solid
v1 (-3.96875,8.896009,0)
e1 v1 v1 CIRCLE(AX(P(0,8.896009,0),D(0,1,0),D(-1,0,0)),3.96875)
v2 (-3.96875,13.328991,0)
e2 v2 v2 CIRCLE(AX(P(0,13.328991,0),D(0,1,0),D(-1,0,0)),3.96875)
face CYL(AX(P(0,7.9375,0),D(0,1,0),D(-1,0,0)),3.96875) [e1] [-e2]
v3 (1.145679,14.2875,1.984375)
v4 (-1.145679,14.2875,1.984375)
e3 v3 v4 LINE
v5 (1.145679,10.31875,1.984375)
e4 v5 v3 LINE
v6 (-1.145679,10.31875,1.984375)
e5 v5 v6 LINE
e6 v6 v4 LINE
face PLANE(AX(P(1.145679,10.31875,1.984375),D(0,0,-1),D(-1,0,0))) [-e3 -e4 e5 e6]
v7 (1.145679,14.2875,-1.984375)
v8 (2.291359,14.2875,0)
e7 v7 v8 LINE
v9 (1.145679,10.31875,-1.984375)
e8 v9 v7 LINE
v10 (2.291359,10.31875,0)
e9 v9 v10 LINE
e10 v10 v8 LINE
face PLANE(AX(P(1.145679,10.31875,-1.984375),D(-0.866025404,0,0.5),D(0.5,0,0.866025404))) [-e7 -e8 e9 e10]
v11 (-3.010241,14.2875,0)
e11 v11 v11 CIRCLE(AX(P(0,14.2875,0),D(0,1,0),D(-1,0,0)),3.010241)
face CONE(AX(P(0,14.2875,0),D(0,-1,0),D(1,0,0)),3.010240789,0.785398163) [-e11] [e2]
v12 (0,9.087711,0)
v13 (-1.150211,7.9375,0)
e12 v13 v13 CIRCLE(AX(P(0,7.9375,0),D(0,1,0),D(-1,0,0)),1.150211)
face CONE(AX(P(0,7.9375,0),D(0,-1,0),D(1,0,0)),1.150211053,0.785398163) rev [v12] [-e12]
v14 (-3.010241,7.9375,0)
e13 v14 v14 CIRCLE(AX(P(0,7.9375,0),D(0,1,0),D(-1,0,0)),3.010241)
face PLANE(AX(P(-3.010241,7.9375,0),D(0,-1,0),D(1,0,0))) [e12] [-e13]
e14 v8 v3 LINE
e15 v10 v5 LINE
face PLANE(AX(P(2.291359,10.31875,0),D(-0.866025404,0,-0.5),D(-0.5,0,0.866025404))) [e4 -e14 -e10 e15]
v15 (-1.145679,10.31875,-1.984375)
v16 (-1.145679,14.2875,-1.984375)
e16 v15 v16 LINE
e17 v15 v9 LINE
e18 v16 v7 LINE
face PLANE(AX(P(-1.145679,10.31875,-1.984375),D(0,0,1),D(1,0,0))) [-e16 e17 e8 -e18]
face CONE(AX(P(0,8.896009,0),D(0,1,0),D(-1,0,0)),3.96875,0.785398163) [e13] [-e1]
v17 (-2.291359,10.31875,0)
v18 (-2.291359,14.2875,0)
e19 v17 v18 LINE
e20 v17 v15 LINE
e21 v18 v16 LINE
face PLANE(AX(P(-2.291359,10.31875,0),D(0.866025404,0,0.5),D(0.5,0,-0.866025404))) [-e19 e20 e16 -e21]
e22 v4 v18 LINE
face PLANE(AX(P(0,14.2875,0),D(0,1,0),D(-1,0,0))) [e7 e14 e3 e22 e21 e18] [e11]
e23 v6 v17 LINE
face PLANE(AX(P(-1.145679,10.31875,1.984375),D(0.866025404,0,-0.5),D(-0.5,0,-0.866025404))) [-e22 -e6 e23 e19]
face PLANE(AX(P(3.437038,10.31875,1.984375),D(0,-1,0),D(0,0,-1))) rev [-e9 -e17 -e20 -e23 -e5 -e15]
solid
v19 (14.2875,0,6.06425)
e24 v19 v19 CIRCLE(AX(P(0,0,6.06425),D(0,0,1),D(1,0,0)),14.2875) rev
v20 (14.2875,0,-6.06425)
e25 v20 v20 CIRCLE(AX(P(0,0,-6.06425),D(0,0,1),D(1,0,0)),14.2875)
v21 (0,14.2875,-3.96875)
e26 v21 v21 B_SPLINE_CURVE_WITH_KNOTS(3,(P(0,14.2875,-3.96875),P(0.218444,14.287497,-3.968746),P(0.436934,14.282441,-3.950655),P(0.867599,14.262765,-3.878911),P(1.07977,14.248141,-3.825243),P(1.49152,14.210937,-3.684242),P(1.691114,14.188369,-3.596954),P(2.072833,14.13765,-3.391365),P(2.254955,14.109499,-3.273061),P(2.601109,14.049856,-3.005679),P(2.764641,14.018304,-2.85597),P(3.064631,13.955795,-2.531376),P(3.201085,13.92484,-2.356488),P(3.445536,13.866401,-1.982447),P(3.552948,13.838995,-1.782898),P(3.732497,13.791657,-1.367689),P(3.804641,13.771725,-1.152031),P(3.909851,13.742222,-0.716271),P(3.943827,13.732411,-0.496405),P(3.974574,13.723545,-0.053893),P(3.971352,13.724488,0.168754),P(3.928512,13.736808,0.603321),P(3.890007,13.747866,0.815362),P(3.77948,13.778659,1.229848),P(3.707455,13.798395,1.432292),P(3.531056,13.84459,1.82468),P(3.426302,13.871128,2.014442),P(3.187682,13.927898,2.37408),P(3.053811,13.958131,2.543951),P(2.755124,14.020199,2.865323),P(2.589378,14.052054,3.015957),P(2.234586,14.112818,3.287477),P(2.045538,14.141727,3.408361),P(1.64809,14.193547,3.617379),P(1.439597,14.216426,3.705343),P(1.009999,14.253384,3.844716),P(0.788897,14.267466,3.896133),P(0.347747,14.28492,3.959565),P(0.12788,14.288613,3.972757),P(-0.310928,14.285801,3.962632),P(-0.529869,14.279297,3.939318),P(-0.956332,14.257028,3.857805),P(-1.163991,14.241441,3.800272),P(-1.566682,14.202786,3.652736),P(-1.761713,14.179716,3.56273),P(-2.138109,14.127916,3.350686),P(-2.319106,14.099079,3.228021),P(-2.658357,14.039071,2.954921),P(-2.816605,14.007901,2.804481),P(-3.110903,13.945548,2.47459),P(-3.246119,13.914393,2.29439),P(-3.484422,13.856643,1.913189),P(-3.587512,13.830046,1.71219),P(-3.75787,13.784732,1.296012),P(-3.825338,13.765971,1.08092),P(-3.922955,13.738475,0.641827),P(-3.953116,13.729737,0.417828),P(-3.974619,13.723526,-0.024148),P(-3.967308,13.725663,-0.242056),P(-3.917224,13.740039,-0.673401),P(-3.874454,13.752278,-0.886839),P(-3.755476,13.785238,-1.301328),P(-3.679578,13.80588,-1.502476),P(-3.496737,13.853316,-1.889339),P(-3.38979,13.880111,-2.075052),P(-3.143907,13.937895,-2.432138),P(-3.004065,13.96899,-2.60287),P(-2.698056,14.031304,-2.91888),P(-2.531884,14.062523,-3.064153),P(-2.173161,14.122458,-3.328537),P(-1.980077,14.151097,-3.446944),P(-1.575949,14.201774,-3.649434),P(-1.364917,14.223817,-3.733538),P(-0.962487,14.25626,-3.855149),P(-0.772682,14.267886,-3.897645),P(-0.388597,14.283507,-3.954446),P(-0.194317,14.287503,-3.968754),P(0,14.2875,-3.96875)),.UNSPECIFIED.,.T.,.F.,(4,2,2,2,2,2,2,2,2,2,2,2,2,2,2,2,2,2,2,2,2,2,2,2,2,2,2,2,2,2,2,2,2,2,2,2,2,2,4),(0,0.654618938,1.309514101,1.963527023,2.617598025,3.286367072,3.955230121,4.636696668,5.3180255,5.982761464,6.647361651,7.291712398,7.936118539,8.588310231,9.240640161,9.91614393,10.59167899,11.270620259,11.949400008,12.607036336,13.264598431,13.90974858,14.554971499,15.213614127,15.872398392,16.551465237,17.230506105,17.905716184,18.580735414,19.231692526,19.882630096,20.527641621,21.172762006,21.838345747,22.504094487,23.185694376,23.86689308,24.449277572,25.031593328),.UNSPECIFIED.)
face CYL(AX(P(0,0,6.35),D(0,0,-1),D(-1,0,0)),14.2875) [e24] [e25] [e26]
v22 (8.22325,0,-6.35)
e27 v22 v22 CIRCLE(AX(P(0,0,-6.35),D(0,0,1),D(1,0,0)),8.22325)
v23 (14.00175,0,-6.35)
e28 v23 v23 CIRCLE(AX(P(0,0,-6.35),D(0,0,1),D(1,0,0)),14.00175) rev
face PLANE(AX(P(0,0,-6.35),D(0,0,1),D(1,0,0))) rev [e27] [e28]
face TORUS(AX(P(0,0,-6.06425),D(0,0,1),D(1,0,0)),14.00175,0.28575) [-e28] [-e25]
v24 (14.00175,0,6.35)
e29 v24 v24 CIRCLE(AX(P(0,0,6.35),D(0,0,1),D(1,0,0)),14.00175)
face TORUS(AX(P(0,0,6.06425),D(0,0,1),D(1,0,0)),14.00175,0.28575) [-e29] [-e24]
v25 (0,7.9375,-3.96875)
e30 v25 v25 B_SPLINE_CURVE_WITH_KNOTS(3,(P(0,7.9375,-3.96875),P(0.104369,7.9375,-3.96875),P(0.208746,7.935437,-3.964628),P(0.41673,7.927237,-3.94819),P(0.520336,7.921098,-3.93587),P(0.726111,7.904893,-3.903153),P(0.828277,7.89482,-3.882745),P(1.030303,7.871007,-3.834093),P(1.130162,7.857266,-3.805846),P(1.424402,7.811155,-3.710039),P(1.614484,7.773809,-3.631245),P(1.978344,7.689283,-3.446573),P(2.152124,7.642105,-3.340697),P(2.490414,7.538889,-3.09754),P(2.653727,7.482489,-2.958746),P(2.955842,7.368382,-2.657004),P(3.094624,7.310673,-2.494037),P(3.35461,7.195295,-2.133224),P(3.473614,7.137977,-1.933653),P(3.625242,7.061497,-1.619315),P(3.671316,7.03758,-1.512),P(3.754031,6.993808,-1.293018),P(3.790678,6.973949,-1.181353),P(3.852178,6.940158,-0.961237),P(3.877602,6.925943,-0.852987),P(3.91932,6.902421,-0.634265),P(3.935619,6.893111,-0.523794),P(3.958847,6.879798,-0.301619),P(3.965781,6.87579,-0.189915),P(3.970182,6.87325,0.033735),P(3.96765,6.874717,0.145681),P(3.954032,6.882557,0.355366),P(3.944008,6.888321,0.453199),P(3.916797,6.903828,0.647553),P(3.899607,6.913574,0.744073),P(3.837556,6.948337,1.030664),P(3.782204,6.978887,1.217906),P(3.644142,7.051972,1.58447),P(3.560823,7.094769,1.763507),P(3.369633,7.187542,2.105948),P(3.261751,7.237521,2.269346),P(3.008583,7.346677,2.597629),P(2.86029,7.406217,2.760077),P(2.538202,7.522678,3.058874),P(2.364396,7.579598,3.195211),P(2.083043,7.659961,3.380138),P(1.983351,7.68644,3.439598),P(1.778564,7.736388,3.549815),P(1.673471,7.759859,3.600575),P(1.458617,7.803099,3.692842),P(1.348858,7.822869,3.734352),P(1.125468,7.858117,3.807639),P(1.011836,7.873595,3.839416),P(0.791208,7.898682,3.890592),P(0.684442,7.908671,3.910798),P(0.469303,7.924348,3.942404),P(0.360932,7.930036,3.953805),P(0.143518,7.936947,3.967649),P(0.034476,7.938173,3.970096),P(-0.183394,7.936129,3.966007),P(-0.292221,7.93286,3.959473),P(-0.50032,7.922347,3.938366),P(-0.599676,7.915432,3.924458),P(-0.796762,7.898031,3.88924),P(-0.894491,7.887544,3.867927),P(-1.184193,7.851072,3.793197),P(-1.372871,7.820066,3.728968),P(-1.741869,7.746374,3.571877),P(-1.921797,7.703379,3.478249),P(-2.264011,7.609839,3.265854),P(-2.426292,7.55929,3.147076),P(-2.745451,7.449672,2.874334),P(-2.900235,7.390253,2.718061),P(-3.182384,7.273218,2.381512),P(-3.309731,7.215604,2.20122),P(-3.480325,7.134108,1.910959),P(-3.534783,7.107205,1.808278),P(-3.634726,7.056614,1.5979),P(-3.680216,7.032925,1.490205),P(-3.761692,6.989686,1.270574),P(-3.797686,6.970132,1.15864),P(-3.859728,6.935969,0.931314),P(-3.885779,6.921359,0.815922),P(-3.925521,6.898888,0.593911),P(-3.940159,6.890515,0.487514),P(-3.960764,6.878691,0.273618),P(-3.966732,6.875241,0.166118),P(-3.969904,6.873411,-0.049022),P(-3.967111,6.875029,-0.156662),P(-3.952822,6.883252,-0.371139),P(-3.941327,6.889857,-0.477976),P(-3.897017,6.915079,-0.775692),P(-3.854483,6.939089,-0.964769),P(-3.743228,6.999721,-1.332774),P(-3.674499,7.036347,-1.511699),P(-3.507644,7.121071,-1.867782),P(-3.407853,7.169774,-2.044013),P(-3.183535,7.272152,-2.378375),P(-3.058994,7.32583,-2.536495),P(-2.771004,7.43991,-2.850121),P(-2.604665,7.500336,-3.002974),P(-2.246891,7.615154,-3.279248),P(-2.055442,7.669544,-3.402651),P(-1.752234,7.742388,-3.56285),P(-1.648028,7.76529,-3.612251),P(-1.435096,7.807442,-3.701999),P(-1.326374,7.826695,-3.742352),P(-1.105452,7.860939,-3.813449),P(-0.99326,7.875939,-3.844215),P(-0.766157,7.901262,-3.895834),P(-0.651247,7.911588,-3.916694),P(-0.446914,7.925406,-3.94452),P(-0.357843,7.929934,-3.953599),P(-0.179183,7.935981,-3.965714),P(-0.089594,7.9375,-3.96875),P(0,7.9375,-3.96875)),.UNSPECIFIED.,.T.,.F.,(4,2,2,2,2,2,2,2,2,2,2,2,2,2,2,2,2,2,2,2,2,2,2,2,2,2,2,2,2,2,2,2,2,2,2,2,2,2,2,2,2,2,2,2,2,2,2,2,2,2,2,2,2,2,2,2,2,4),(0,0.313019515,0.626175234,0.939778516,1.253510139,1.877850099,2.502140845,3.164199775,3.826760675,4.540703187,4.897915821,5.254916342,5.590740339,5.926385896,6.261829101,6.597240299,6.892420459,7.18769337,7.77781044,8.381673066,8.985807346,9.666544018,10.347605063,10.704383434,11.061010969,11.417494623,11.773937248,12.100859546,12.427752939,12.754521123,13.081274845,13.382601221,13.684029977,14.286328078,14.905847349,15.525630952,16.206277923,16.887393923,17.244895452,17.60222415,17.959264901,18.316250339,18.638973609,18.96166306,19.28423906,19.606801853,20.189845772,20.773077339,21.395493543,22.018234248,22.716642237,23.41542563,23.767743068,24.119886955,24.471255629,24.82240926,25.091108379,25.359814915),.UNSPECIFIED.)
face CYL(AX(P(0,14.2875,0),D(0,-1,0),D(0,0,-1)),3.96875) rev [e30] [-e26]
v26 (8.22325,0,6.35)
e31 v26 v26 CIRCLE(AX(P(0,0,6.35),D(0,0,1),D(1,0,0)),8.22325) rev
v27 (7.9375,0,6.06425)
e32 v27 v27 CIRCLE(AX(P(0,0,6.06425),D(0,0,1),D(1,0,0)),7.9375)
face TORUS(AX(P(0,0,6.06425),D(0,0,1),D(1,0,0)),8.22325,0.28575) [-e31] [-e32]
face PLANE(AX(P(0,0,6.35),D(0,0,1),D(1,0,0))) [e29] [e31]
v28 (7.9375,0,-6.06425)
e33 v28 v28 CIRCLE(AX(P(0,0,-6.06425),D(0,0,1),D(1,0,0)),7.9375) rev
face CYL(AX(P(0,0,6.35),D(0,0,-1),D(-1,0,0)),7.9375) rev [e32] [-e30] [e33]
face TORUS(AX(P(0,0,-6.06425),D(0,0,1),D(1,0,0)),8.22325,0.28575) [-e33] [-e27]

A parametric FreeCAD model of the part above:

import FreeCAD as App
import Part
import Sketcher
from FreeCAD import Vector
Q = App.Units.Quantity


def edges_at(feature, points):
    """Names of the edges that pass closest to the given points."""
    edges = feature.Shape.Edges
    near = lambda p: min(range(len(edges)), key=lambda i: edges[i].distToShape(Part.Vertex(*p))[0])
    return sorted({f"Edge{near(p) + 1}" for p in points})

doc = App.newDocument("Part")
params = doc.addObject("Spreadsheet::Sheet", "Params")
for row, (alias, value) in enumerate([
    ("sketch1_diameter", "1.125 in"),
    ("sketch1_diameter2", "0.625 in"),
    ("pad1_length", "0.5 in"),
    ("sketch2_diameter", "0.3125 in"),
    ("fillet_radius", "0.28575 mm"),
    ("revolution_angle", "360 deg"),
    ("pocket2_length", "0.15625 in"),
], start=1):
    params.set(f"A{row}", alias)
    params.set(f"B{row}", "=" + value)
    params.setAlias(f"B{row}", alias)

body = doc.addObject("PartDesign::Body", "Body")

# Sketch on XY plane
sketch1 = body.newObject("Sketcher::SketchObject", "Sketch")
sketch1.AttachmentSupport = (doc.getObject("XY_Plane"), [""])
sketch1.MapMode = "FlatFace"
sketch1.addGeometry([
    Part.Circle(Vector(0, 0, 0), Vector(0, 0, 1), 14.2875),
    Part.Circle(Vector(0, 0, 0), Vector(0, 0, 1), 7.9375),
], False)
sketch1.addConstraint([
    Sketcher.Constraint("Coincident", 0, 3, -1, 1),
    Sketcher.Constraint("Coincident", 1, 3, -1, 1),
    Sketcher.Constraint("Diameter", 0, Q("1.125 in")),
    Sketcher.Constraint("Diameter", 1, Q("0.625 in")),
])
sketch1.setExpression("Constraints[2]", "Params.sketch1_diameter")
sketch1.setExpression("Constraints[3]", "Params.sketch1_diameter2")
pad1 = body.newObject("PartDesign::Pad", "Pad")
pad1.Profile = sketch1
pad1.setExpression("Length", "Params.pad1_length")
pad1.Midplane = True

# Sketch on XZ plane
sketch2 = body.newObject("Sketcher::SketchObject", "Sketch001")
sketch2.AttachmentSupport = (doc.getObject("XZ_Plane"), [""])
sketch2.MapMode = "FlatFace"
sketch2.addGeometry(Part.Circle(Vector(0, 0, 0), Vector(0, 0, 1), 3.96875), False)
sketch2.addConstraint([
    Sketcher.Constraint("Coincident", 0, 3, -1, 1),
    Sketcher.Constraint("Diameter", 0, Q("0.3125 in")),
])
sketch2.setExpression("Constraints[1]", "Params.sketch2_diameter")
pocket1 = body.newObject("PartDesign::Pocket", "Pocket")
pocket1.Profile = sketch2
pocket1.Type = "ThroughAll"
doc.recompute()

fillet = body.newObject("PartDesign::Fillet", "Fillet")
fillet.Base = (pocket1, edges_at(pocket1, [
    (-14.287, 0, -6.35),
    (-14.287, 0, 6.35),
    (-7.938, 0, -6.35),
    (-7.938, 0, 6.35),
]))
fillet.setExpression("Radius", "Params.fillet_radius")
body2 = doc.addObject("PartDesign::Body", "Body001")

# Sketch on XY plane
sketch3 = body2.newObject("Sketcher::SketchObject", "Sketch002")
sketch3.AttachmentSupport = (doc.getObject("XY_Plane001"), [""])
sketch3.MapMode = "FlatFace"
sketch3.addGeometry([
    Part.LineSegment(Vector(-3.010241, 7.9375, 0), Vector(-1.150211, 7.9375, 0)),  # 0
    Part.LineSegment(Vector(-1.150211, 7.9375, 0), Vector(0, 9.087711, 0)),  # 1
    Part.LineSegment(Vector(0, 9.087711, 0), Vector(0, 14.2875, 0)),  # 2
    Part.LineSegment(Vector(0, 14.2875, 0), Vector(-3.010241, 14.2875, 0)),  # 3
    Part.LineSegment(Vector(-3.010241, 14.2875, 0), Vector(-3.96875, 13.328991, 0)),  # 4
    Part.LineSegment(Vector(-3.96875, 13.328991, 0), Vector(-3.96875, 8.896009, 0)),  # 5
    Part.LineSegment(Vector(-3.96875, 8.896009, 0), Vector(-3.010241, 7.9375, 0)),  # 6
], False)
sketch3.addConstraint([
    Sketcher.Constraint("Coincident", 0, 2, 1, 1),
    Sketcher.Constraint("Coincident", 1, 2, 2, 1),
    Sketcher.Constraint("Coincident", 2, 2, 3, 1),
    Sketcher.Constraint("Coincident", 3, 2, 4, 1),
    Sketcher.Constraint("Coincident", 4, 2, 5, 1),
    Sketcher.Constraint("Coincident", 5, 2, 6, 1),
    Sketcher.Constraint("Coincident", 6, 2, 0, 1),
    Sketcher.Constraint("Horizontal", 0),
    Sketcher.Constraint("Vertical", 2),
    Sketcher.Constraint("Horizontal", 3),
    Sketcher.Constraint("Vertical", 5),
    Sketcher.Constraint("PointOnObject", 1, 2, -2),
    Sketcher.Constraint("Parallel", 1, 4),
    Sketcher.Constraint("Perpendicular", 4, 6),
    Sketcher.Constraint("Vertical", 3, 2, 6, 2),
    Sketcher.Constraint("Equal", 4, 6),
    Sketcher.Constraint("DistanceY", 0, 2, 2, 2, Q("0.25 in")),
    Sketcher.Constraint("DistanceY", -1, 1, 0, 2, Q("0.3125 in")),
    Sketcher.Constraint("DistanceX", 4, 2, -1, 1, Q("0.15625 in")),
    Sketcher.Constraint("DistanceX", 0, 1, 0, 2, 1.86003),
    Sketcher.Constraint("DistanceX", 3, 2, 3, 1, 3.010241),
])
revolution = body2.newObject("PartDesign::Revolution", "Revolution")
revolution.Profile = sketch3
revolution.ReferenceAxis = (sketch3, ["V_Axis"])
revolution.setExpression("Angle", "Params.revolution_angle")

# Sketch on XZ plane
sketch4 = body2.newObject("Sketcher::SketchObject", "Sketch003")
sketch4.AttachmentSupport = (doc.getObject("XZ_Plane001"), [""])
sketch4.MapMode = "FlatFace"
sketch4.AttachmentOffset = App.Placement(Vector(0, 0, -0.5625 * 25.4), App.Rotation())
sketch4.addGeometry([
    Part.LineSegment(Vector(2.291359, 0, 0), Vector(1.145679, 1.984375, 0)),  # 0
    Part.LineSegment(Vector(1.145679, 1.984375, 0), Vector(-1.145679, 1.984375, 0)),  # 1
    Part.LineSegment(Vector(-1.145679, 1.984375, 0), Vector(-2.291359, 0, 0)),  # 2
    Part.LineSegment(Vector(-2.291359, 0, 0), Vector(-1.145679, -1.984375, 0)),  # 3
    Part.LineSegment(Vector(-1.145679, -1.984375, 0), Vector(1.145679, -1.984375, 0)),  # 4
    Part.LineSegment(Vector(1.145679, -1.984375, 0), Vector(2.291359, 0, 0)),  # 5
], False)
sketch4.addConstraint([
    Sketcher.Constraint("Coincident", 0, 2, 1, 1),
    Sketcher.Constraint("Coincident", 1, 2, 2, 1),
    Sketcher.Constraint("Coincident", 2, 2, 3, 1),
    Sketcher.Constraint("Coincident", 3, 2, 4, 1),
    Sketcher.Constraint("Coincident", 4, 2, 5, 1),
    Sketcher.Constraint("Coincident", 5, 2, 0, 1),
    Sketcher.Constraint("Horizontal", 1),
    Sketcher.Constraint("Horizontal", 4),
    Sketcher.Constraint("Symmetric", 0, 2, 3, 2, -1, 1),
    Sketcher.Constraint("Symmetric", 2, 2, 5, 2, -1, 1),
    Sketcher.Constraint("PointOnObject", 2, 2, -1),
    Sketcher.Constraint("Parallel", 2, 5),
    Sketcher.Constraint("Vertical", 1, 2, 3, 2),
    Sketcher.Constraint("Angle", 0, Q("120 deg")),
    Sketcher.Constraint("DistanceY", -1, 1, 0, 2, Q("0.078125 in")),
    Sketcher.Constraint("DistanceX", 1, 2, 1, 1, 2.291359),
])
pocket2 = body2.newObject("PartDesign::Pocket", "Pocket001")
pocket2.Profile = sketch4
pocket2.setExpression("Length", "Params.pocket2_length")
pocket2.Reversed = True

doc.recompute()
